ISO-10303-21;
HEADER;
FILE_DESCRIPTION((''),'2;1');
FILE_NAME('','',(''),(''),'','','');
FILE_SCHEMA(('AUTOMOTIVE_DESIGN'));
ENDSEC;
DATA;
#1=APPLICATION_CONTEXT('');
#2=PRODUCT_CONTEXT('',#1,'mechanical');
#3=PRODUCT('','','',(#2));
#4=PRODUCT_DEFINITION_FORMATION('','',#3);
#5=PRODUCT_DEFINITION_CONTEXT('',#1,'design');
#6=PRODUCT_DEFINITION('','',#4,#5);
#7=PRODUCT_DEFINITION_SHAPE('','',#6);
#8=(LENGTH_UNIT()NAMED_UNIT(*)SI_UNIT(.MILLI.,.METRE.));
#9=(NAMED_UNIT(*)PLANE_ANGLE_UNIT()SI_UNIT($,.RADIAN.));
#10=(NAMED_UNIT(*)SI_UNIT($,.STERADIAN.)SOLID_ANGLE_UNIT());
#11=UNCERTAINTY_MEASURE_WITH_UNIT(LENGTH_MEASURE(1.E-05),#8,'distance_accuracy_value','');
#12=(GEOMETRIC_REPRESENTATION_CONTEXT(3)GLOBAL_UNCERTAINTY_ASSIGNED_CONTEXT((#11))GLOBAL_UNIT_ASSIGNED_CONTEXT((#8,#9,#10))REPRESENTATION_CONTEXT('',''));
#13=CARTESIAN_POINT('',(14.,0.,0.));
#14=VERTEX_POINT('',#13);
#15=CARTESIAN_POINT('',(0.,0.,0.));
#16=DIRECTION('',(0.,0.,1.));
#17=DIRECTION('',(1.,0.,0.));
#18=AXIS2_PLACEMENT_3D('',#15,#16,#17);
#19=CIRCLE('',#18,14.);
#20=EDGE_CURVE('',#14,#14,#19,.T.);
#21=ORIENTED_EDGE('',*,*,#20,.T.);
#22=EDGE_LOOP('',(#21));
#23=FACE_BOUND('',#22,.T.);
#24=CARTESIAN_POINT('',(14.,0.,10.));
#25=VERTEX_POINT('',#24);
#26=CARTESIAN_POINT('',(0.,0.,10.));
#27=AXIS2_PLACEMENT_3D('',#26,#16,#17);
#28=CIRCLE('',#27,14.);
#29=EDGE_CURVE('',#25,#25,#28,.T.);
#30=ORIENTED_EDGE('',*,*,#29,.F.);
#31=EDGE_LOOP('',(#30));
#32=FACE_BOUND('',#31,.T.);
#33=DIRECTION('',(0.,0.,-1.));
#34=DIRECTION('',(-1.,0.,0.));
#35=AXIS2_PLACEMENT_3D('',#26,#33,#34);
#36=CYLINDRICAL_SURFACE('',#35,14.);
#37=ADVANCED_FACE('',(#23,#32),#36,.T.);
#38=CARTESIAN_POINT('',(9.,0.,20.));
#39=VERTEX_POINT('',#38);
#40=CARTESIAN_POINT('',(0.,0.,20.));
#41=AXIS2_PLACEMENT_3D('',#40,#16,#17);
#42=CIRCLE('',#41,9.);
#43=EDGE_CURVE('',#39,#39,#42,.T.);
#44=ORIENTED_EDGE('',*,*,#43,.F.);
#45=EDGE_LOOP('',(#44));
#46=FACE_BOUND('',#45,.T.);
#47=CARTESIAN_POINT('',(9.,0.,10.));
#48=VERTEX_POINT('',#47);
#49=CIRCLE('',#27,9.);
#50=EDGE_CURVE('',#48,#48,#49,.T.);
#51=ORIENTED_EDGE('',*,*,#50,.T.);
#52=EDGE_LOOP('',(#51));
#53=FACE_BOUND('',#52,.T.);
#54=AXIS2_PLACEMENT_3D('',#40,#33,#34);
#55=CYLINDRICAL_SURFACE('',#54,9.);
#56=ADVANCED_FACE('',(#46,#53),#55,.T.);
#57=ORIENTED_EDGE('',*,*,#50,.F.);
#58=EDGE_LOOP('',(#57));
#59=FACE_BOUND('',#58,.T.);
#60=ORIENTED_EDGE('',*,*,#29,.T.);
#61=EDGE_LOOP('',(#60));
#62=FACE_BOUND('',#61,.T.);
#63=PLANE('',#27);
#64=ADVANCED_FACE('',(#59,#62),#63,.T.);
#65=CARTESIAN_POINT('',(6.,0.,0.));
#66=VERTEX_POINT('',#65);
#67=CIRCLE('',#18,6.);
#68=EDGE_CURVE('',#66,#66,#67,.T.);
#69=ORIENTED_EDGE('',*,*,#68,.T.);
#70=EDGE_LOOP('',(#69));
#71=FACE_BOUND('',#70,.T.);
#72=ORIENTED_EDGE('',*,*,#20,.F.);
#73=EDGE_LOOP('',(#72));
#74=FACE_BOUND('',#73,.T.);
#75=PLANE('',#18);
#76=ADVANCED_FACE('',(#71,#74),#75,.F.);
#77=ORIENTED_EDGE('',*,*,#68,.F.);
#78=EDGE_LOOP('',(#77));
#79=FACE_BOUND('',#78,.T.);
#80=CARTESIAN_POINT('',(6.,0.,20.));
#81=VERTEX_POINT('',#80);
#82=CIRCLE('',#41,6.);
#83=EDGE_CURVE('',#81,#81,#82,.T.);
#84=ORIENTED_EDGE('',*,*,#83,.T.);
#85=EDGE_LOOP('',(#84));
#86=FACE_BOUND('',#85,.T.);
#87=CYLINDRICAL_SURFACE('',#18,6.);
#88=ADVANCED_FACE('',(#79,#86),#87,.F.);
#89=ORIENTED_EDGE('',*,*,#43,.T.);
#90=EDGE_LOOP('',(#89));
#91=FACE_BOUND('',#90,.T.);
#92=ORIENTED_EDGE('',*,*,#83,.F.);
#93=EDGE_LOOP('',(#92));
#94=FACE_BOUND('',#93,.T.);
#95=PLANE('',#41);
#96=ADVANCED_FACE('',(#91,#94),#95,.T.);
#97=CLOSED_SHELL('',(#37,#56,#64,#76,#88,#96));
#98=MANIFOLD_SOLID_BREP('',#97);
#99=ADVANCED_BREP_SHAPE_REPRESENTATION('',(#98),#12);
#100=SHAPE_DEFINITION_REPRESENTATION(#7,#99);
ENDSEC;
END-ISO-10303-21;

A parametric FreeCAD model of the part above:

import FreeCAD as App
import Part
import Sketcher
from FreeCAD import Vector

doc = App.newDocument("Part")
body = doc.addObject("PartDesign::Body", "Body")

# Sketch on XY plane
sketch1 = body.newObject("Sketcher::SketchObject", "Sketch")
sketch1.AttachmentSupport = (doc.getObject("XY_Plane"), [""])
sketch1.MapMode = "FlatFace"
sketch1.addGeometry(Part.Circle(Vector(0, 0, 0), Vector(0, 0, 1), 14), False)
sketch1.addConstraint([
    Sketcher.Constraint("Coincident", 0, 3, -1, 1),
    Sketcher.Constraint("Diameter", 0, 28.0),
])
pad1 = body.newObject("PartDesign::Pad", "Pad")
pad1.Profile = sketch1
pad1.Length = 10

# Sketch on XY plane
sketch2 = body.newObject("Sketcher::SketchObject", "Sketch001")
sketch2.AttachmentSupport = (doc.getObject("XY_Plane"), [""])
sketch2.MapMode = "FlatFace"
sketch2.AttachmentOffset = App.Placement(Vector(0, 0, 10), App.Rotation())
sketch2.addGeometry(Part.Circle(Vector(0, 0, 0), Vector(0, 0, 1), 9), False)
sketch2.addConstraint([
    Sketcher.Constraint("Coincident", 0, 3, -1, 1),
    Sketcher.Constraint("Diameter", 0, 18.0),
])
pad2 = body.newObject("PartDesign::Pad", "Pad001")
pad2.Profile = sketch2
pad2.Length = 10

# Sketch on XY plane
sketch3 = body.newObject("Sketcher::SketchObject", "Sketch002")
sketch3.AttachmentSupport = (doc.getObject("XY_Plane"), [""])
sketch3.MapMode = "FlatFace"
sketch3.AttachmentOffset = App.Placement(Vector(0, 0, 20), App.Rotation())
sketch3.addGeometry(Part.Circle(Vector(0, 0, 0), Vector(0, 0, 1), 6), False)
sketch3.addConstraint([
    Sketcher.Constraint("Coincident", 0, 3, -1, 1),
    Sketcher.Constraint("Diameter", 0, 12.0),
])
pocket1 = body.newObject("PartDesign::Pocket", "Pocket")
pocket1.Profile = sketch3
pocket1.Type = "ThroughAll"

doc.recompute()
